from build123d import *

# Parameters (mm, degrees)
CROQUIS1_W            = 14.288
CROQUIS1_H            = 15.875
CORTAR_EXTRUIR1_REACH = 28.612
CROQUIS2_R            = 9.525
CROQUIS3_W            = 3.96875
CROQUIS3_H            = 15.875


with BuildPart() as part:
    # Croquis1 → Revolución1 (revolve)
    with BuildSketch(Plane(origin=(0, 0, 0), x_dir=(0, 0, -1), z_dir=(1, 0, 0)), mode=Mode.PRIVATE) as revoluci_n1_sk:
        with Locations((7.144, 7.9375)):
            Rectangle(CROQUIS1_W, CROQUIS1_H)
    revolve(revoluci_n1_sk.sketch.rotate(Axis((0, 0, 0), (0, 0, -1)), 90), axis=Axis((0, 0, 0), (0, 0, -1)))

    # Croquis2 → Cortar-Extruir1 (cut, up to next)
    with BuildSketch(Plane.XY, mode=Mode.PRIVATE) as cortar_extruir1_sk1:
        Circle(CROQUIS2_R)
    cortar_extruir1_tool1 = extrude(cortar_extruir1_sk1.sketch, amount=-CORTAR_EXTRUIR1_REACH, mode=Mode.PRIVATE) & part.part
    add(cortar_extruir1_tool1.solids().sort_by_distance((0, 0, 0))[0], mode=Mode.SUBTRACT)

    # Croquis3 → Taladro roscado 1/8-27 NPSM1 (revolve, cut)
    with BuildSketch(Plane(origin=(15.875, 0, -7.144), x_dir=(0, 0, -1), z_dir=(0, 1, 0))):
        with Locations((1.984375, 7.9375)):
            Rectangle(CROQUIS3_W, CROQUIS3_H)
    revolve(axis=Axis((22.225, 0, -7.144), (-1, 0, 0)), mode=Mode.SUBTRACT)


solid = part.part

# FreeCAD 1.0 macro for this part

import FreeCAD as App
import Part
import Sketcher
Q = App.Units.Quantity


def add_polygon(sketch, points):
    """Adds a closed chain of lines whose ends are joined by coincident constraints."""
    first, n = sketch.GeometryCount, len(points)
    for a, b in zip(points, points[1:] + points[:1]):
        sketch.addGeometry(Part.LineSegment(App.Vector(*a, 0), App.Vector(*b, 0)), False)
    for i in range(n):
        sketch.addConstraint(Sketcher.Constraint("Coincident", first + i, 2, first + (i + 1) % n, 1))

doc = App.newDocument("Part")
params = doc.addObject("Spreadsheet::Sheet", "Params")
for row, (alias, value) in enumerate([
    ("sketch1_width", "0.625 in"),
    ("revolution_angle", "360 deg"),
    ("sketch2_diameter", "0.75 in"),
    ("sketch3_width", "0.625 in"),
    ("sketch3_height", "0.15625 in"),
    ("groove_angle", "360 deg"),
], start=1):
    params.set(f"A{row}", alias)
    params.set(f"B{row}", "=" + value)
    params.setAlias(f"B{row}", alias)

body = doc.addObject("PartDesign::Body", "Body")

# Sketch on YZ plane
sketch1 = doc.addObject("Sketcher::SketchObject", "Sketch")
body.addObject(sketch1)
sketch1.AttachmentSupport = (doc.YZ_Plane, [""])
sketch1.MapMode = "FlatFace"
add_polygon(sketch1, [(15.875, 0), (0, 0), (0, -14.288), (15.875, -14.288)])  # lines 0-3
sketch1.addConstraint(Sketcher.Constraint("Horizontal", 0))
sketch1.addConstraint(Sketcher.Constraint("Vertical", 1))
sketch1.addConstraint(Sketcher.Constraint("Horizontal", 2))
sketch1.addConstraint(Sketcher.Constraint("Vertical", 3))
sketch1.addConstraint(Sketcher.Constraint("Coincident", 0, 2, -1, 1))
sketch1.addConstraint(Sketcher.Constraint("DistanceX", 0, 2, 0, 1, Q("0.625 in")))
sketch1.addConstraint(Sketcher.Constraint("DistanceY", 1, 2, 1, 1, Q("14.288 mm")))
sketch1.setExpression("Constraints[9]", "Params.sketch1_width")
revolution = doc.addObject("PartDesign::Revolution", "Revolution")
body.addObject(revolution)
revolution.Profile = sketch1
revolution.ReferenceAxis = (sketch1, ["V_Axis"])
revolution.setExpression("Angle", "Params.revolution_angle")

# Sketch on XY plane
sketch2 = doc.addObject("Sketcher::SketchObject", "Sketch001")
body.addObject(sketch2)
sketch2.AttachmentSupport = (doc.XY_Plane, [""])
sketch2.MapMode = "FlatFace"
sketch2.addGeometry(Part.Circle(App.Vector(0, 0, 0), App.Vector(0, 0, 1), 9.525), False)
sketch2.addConstraint(Sketcher.Constraint("Coincident", 0, 3, -1, 1))
sketch2.addConstraint(Sketcher.Constraint("Diameter", 0, Q("0.75 in")))
sketch2.setExpression("Constraints[1]", "Params.sketch2_diameter")
pocket1 = doc.addObject("PartDesign::Pocket", "Pocket")
body.addObject(pocket1)
pocket1.Profile = sketch2
pocket1.Type = "UpToFirst"

# Sketch on XZ plane
sketch3 = doc.addObject("Sketcher::SketchObject", "Sketch002")
body.addObject(sketch3)
sketch3.AttachmentSupport = (doc.XZ_Plane, [""])
sketch3.MapMode = "FlatFace"
add_polygon(sketch3, [(0, -7.144), (15.875, -7.144), (15.875, -11.11275), (0, -11.11275)])  # lines 0-3
sketch3.addGeometry(Part.LineSegment(App.Vector(15.875, -7.144, 0), App.Vector(0, -7.144, 0)), True)  # axis
sketch3.addConstraint(Sketcher.Constraint("Horizontal", 0))
sketch3.addConstraint(Sketcher.Constraint("Vertical", 1))
sketch3.addConstraint(Sketcher.Constraint("Horizontal", 2))
sketch3.addConstraint(Sketcher.Constraint("Vertical", 3))
sketch3.addConstraint(Sketcher.Constraint("Horizontal", 4))
sketch3.addConstraint(Sketcher.Constraint("Coincident", 4, 1, 0, 2))
sketch3.addConstraint(Sketcher.Constraint("PointOnObject", 2, 2, -2))
sketch3.addConstraint(Sketcher.Constraint("PointOnObject", 4, 2, -2))
sketch3.addConstraint(Sketcher.Constraint("DistanceX", 0, 1, 0, 2, Q("0.625 in")))
sketch3.addConstraint(Sketcher.Constraint("DistanceY", 1, 2, 1, 1, Q("0.15625 in")))
sketch3.addConstraint(Sketcher.Constraint("DistanceY", 0, 2, -1, 1, Q("7.144 mm")))
sketch3.setExpression("Constraints[12]", "Params.sketch3_width")
sketch3.setExpression("Constraints[13]", "Params.sketch3_height")
groove = doc.addObject("PartDesign::Groove", "Groove")
body.addObject(groove)
groove.Profile = sketch3
groove.ReferenceAxis = (sketch3, ["Axis0"])
groove.setExpression("Angle", "Params.groove_angle")

doc.recompute()
